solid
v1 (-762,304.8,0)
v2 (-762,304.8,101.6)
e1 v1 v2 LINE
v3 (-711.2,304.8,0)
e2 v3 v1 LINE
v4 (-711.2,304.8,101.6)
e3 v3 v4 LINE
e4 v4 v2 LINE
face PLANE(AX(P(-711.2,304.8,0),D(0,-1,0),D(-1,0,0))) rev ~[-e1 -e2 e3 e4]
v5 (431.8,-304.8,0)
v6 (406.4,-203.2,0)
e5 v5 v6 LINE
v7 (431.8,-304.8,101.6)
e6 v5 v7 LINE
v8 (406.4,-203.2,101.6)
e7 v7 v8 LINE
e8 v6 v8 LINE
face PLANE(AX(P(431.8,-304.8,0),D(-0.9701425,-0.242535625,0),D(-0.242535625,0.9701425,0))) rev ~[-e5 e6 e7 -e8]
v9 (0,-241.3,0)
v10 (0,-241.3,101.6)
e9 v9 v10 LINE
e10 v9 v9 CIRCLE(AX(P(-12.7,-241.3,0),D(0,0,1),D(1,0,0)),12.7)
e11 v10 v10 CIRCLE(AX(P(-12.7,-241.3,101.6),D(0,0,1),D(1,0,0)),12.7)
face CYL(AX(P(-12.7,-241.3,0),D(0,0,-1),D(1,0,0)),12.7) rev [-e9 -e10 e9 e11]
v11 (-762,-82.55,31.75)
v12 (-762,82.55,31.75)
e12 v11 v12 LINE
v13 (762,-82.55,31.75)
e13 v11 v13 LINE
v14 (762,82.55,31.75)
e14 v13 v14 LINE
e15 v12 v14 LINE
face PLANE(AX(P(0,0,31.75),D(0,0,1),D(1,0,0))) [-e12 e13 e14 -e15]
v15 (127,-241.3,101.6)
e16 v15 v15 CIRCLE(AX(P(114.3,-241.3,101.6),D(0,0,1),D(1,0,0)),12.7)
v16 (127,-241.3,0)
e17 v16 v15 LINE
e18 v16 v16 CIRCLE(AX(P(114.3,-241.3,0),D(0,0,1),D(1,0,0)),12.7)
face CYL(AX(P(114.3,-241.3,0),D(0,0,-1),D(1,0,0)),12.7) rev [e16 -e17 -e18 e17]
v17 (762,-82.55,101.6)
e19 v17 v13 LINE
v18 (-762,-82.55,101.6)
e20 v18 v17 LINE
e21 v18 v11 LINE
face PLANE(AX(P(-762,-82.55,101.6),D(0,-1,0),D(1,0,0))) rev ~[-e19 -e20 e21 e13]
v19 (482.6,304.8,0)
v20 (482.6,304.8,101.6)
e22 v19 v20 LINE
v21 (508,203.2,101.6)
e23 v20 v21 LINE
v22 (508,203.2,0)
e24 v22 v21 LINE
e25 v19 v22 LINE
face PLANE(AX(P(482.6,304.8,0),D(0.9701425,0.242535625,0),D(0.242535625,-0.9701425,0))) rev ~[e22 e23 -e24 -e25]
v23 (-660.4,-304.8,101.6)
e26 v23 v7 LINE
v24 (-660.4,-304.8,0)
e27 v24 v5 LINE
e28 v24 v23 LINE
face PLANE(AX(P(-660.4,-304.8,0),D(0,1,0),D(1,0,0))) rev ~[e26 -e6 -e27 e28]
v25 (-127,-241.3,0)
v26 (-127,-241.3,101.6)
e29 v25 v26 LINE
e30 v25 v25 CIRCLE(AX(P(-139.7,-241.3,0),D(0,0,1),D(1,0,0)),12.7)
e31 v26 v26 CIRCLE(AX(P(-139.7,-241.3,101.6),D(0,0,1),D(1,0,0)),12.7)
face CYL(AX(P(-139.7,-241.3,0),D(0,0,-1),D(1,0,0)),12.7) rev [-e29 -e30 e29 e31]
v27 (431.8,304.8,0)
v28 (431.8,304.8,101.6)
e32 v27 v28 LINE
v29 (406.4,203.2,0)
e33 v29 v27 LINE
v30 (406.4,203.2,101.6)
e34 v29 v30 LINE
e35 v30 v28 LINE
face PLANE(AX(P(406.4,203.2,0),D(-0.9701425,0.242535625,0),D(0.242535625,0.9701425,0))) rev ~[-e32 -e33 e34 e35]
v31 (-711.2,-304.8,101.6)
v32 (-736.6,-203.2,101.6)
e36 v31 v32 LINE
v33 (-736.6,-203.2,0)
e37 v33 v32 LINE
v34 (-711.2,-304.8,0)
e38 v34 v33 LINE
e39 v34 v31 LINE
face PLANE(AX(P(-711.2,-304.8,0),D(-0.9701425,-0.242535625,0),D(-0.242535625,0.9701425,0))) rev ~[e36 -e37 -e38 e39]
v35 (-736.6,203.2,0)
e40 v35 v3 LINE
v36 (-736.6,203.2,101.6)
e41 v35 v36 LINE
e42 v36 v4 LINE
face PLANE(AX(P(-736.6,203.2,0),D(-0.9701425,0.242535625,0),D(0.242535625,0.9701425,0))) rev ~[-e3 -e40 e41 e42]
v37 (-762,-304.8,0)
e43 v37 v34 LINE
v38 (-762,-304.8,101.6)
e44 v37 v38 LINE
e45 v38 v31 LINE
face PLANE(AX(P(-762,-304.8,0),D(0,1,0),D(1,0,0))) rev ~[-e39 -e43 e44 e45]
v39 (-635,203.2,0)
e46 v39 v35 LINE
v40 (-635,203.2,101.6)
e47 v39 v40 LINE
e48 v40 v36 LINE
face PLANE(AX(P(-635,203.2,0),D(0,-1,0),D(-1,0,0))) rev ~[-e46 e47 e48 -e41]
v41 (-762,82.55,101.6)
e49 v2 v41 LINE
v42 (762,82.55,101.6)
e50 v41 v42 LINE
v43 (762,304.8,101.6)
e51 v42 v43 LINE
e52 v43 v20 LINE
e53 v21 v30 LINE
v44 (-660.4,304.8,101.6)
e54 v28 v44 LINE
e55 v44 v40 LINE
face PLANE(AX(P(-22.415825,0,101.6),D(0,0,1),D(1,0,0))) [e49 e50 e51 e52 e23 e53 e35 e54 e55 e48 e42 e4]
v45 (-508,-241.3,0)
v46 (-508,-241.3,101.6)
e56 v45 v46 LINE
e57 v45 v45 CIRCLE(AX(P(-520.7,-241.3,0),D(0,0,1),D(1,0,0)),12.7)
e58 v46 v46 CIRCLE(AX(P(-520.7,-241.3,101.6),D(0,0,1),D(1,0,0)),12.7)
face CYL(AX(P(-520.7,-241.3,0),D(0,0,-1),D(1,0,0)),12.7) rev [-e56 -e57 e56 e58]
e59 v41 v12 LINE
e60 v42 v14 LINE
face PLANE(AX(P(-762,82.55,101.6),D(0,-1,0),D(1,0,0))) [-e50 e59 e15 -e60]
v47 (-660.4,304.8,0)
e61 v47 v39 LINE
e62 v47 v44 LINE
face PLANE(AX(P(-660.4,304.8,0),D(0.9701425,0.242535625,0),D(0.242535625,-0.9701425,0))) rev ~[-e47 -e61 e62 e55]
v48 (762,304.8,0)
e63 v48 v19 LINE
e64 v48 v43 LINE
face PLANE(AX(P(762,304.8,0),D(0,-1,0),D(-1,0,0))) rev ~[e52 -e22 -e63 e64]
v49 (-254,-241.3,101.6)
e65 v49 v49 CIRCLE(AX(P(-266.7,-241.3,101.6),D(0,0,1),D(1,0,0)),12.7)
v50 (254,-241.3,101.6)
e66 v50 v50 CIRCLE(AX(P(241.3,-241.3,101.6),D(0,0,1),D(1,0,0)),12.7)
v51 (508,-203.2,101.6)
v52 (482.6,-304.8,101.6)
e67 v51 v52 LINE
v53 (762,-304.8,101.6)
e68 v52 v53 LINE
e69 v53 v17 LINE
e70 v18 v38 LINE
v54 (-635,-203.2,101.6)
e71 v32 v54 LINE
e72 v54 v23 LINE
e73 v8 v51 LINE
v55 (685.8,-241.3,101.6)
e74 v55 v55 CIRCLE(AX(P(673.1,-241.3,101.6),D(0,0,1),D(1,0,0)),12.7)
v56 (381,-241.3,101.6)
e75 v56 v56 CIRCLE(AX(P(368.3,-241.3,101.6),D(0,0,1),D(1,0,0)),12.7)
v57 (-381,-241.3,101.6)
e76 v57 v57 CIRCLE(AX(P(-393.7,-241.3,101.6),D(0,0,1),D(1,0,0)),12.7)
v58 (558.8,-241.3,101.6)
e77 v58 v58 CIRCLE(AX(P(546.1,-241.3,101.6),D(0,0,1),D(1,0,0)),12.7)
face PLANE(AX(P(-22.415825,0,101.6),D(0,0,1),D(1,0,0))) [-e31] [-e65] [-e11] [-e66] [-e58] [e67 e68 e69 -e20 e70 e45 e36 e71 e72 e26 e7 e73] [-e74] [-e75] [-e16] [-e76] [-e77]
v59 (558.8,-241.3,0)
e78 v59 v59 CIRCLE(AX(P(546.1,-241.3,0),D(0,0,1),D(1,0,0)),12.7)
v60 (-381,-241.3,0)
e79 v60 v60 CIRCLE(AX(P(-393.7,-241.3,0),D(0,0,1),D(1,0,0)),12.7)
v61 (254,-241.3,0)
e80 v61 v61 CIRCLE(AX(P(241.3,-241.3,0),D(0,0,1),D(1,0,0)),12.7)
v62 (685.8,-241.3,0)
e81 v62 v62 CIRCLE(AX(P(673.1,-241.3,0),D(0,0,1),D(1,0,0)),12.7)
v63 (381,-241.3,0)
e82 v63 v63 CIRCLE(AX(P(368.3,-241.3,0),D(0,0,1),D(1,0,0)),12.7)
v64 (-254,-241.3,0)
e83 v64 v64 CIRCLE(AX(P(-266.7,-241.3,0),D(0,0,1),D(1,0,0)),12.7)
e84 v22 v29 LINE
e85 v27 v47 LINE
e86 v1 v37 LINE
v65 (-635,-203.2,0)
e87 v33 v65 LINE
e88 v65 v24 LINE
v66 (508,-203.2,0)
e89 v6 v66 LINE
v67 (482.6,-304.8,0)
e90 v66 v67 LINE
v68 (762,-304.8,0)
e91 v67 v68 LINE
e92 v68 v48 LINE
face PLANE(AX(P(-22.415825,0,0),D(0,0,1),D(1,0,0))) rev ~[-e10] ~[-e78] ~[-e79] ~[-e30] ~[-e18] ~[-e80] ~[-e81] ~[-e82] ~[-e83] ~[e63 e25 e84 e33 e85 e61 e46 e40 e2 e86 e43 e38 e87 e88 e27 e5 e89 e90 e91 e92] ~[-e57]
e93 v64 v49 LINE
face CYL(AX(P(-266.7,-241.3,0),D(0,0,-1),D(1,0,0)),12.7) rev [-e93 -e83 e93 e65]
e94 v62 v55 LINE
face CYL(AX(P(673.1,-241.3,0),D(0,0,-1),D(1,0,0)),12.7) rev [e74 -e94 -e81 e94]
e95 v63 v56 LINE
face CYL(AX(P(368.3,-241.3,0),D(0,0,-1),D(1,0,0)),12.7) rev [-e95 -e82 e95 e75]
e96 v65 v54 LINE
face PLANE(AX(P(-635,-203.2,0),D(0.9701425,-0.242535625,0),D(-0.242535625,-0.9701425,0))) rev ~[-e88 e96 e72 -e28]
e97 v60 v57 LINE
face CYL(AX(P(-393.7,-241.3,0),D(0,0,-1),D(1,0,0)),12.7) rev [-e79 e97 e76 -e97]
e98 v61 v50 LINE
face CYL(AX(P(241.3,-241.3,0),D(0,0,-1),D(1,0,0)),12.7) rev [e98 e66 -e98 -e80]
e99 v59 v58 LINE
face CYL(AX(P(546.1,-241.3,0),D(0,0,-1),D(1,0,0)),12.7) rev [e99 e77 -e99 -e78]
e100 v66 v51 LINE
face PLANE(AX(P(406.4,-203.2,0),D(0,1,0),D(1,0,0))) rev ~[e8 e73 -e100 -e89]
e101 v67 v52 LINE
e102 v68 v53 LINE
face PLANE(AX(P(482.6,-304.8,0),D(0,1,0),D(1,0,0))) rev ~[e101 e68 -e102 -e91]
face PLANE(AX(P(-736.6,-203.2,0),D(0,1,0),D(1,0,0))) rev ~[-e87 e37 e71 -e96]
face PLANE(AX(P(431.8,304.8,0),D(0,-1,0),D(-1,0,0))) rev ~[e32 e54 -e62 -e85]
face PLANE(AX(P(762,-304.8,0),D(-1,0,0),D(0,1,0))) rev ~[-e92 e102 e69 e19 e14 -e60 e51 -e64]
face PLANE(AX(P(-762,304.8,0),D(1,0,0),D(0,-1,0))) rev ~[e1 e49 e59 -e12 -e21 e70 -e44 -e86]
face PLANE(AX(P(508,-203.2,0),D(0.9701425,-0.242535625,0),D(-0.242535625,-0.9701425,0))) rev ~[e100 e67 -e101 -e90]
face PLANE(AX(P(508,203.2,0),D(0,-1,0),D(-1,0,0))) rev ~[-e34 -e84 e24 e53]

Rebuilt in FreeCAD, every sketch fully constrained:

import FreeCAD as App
import Part
import Sketcher
Q = App.Units.Quantity


def add_polygon(sketch, points):
    """Adds a closed chain of lines whose ends are joined by coincident constraints."""
    first, n = sketch.GeometryCount, len(points)
    for a, b in zip(points, points[1:] + points[:1]):
        sketch.addGeometry(Part.LineSegment(App.Vector(*a, 0), App.Vector(*b, 0)), False)
    for i in range(n):
        sketch.addConstraint(Sketcher.Constraint("Coincident", first + i, 2, first + (i + 1) % n, 1))

doc = App.newDocument("Part")
params = doc.addObject("Spreadsheet::Sheet", "Params")
for row, (alias, value) in enumerate([
    ("sketch1_diameter", "1 in"),
    ("sketch1_width", "11 in"),
    ("sketch1_width2", "4 in"),
    ("sketch1_width3", "43 in"),
    ("sketch1_width4", "2 in"),
    ("pad1_length", "4 in"),
    ("sketch2_width", "60 in"),
    ("sketch2_height", "6.5 in"),
    ("pocket1_length", "2.75 in"),
], start=1):
    params.set(f"A{row}", alias)
    params.set(f"B{row}", "=" + value)
    params.setAlias(f"B{row}", alias)

body = doc.addObject("PartDesign::Body", "Body")

sketch1 = doc.addObject("Sketcher::SketchObject", "Sketch")
body.addObject(sketch1)
sketch1.AttachmentSupport = (doc.XY_Plane, [""])
sketch1.MapMode = "FlatFace"
add_polygon(sketch1, [(762, -305), (762, 305), (483, 305), (508, 203), (406, 203), (432, 305), (-660, 305), (-635, 203), (-737, 203), (-711, 305), (-762, 305), (-762, -305), (-711, -305), (-737, -203), (-635, -203), (-660, -305), (432, -305), (406, -203), (508, -203), (483, -305)])
sketch1.addGeometry(Part.Circle(App.Vector(-521, -241, 0), App.Vector(0, 0, 1), 13), False)
sketch1.addGeometry(Part.Circle(App.Vector(-394, -241, 0), App.Vector(0, 0, 1), 13), False)
sketch1.addGeometry(Part.Circle(App.Vector(-267, -241, 0), App.Vector(0, 0, 1), 13), False)
sketch1.addGeometry(Part.Circle(App.Vector(-140, -241, 0), App.Vector(0, 0, 1), 13), False)
sketch1.addGeometry(Part.Circle(App.Vector(-13, -241, 0), App.Vector(0, 0, 1), 13), False)
sketch1.addGeometry(Part.Circle(App.Vector(114, -241, 0), App.Vector(0, 0, 1), 13), False)
sketch1.addGeometry(Part.Circle(App.Vector(241, -241, 0), App.Vector(0, 0, 1), 13), False)
sketch1.addGeometry(Part.Circle(App.Vector(368, -241, 0), App.Vector(0, 0, 1), 13), False)
sketch1.addGeometry(Part.Circle(App.Vector(546, -241, 0), App.Vector(0, 0, 1), 13), False)
sketch1.addGeometry(Part.Circle(App.Vector(673, -241, 0), App.Vector(0, 0, 1), 13), False)
sketch1.addConstraint(Sketcher.Constraint("Vertical", 0))
sketch1.addConstraint(Sketcher.Constraint("Horizontal", 1))
sketch1.addConstraint(Sketcher.Constraint("Horizontal", 3))
sketch1.addConstraint(Sketcher.Constraint("Horizontal", 5))
sketch1.addConstraint(Sketcher.Constraint("Horizontal", 7))
sketch1.addConstraint(Sketcher.Constraint("Horizontal", 9))
sketch1.addConstraint(Sketcher.Constraint("Vertical", 10))
sketch1.addConstraint(Sketcher.Constraint("Horizontal", 11))
sketch1.addConstraint(Sketcher.Constraint("Horizontal", 13))
sketch1.addConstraint(Sketcher.Constraint("Horizontal", 15))
sketch1.addConstraint(Sketcher.Constraint("Horizontal", 17))
sketch1.addConstraint(Sketcher.Constraint("Horizontal", 19))
sketch1.addConstraint(Sketcher.Constraint("Equal", 20, 21))
sketch1.addConstraint(Sketcher.Constraint("Equal", 21, 22))
sketch1.addConstraint(Sketcher.Constraint("Equal", 22, 23))
sketch1.addConstraint(Sketcher.Constraint("Equal", 23, 24))
sketch1.addConstraint(Sketcher.Constraint("Equal", 24, 25))
sketch1.addConstraint(Sketcher.Constraint("Equal", 25, 26))
sketch1.addConstraint(Sketcher.Constraint("Equal", 26, 27))
sketch1.addConstraint(Sketcher.Constraint("Equal", 27, 28))
sketch1.addConstraint(Sketcher.Constraint("Equal", 28, 29))
sketch1.addConstraint(Sketcher.Constraint("Symmetric", 0, 2, 10, 2, -1, 1))
sketch1.addConstraint(Sketcher.Constraint("Symmetric", 8, 2, 11, 2, -1))
sketch1.addConstraint(Sketcher.Constraint("Symmetric", 7, 2, 12, 2, -1))
sketch1.addConstraint(Sketcher.Constraint("Symmetric", 5, 2, 14, 2, -1))
sketch1.addConstraint(Sketcher.Constraint("Symmetric", 3, 2, 16, 2, -1))
sketch1.addConstraint(Sketcher.Constraint("Symmetric", 1, 2, 18, 2, -1))
sketch1.addConstraint(Sketcher.Constraint("Parallel", 2, 6))
sketch1.addConstraint(Sketcher.Constraint("Parallel", 4, 8))
sketch1.addConstraint(Sketcher.Constraint("Parallel", 6, 12))
sketch1.addConstraint(Sketcher.Constraint("Parallel", 8, 14))
sketch1.addConstraint(Sketcher.Constraint("Parallel", 12, 16))
sketch1.addConstraint(Sketcher.Constraint("Parallel", 14, 18))
sketch1.addConstraint(Sketcher.Constraint("Horizontal", 20, 3, 21, 3))
sketch1.addConstraint(Sketcher.Constraint("Horizontal", 21, 3, 22, 3))
sketch1.addConstraint(Sketcher.Constraint("Horizontal", 22, 3, 23, 3))
sketch1.addConstraint(Sketcher.Constraint("Horizontal", 23, 3, 24, 3))
sketch1.addConstraint(Sketcher.Constraint("Horizontal", 24, 3, 25, 3))
sketch1.addConstraint(Sketcher.Constraint("Horizontal", 25, 3, 26, 3))
sketch1.addConstraint(Sketcher.Constraint("Horizontal", 26, 3, 27, 3))
sketch1.addConstraint(Sketcher.Constraint("Horizontal", 27, 3, 28, 3))
sketch1.addConstraint(Sketcher.Constraint("Horizontal", 28, 3, 29, 3))
sketch1.addConstraint(Sketcher.Constraint("Horizontal", 1, 2, 4, 2))
sketch1.addConstraint(Sketcher.Constraint("Horizontal", 3, 2, 6, 2))
sketch1.addConstraint(Sketcher.Constraint("Equal", 3, 7))
sketch1.addConstraint(Sketcher.Constraint("Diameter", 20, Q("1 in")))
sketch1.addConstraint(Sketcher.Constraint("DistanceX", 1, 2, 1, 1, Q("11 in")))
sketch1.addConstraint(Sketcher.Constraint("DistanceX", 3, 2, 3, 1, Q("4 in")))
sketch1.addConstraint(Sketcher.Constraint("DistanceX", 5, 2, 5, 1, Q("43 in")))
sketch1.addConstraint(Sketcher.Constraint("DistanceX", 9, 2, 9, 1, Q("2 in")))
sketch1.addConstraint(Sketcher.Constraint("DistanceY", 0, 1, 0, 2, Q("24 in")))
sketch1.addConstraint(Sketcher.Constraint("DistanceX", -1, 1, 0, 2, Q("30 in")))
sketch1.addConstraint(Sketcher.Constraint("DistanceY", -1, 1, 2, 2, Q("8 in")))
sketch1.addConstraint(Sketcher.Constraint("DistanceX", 20, 3, 21, 3, Q("5 in")))
sketch1.addConstraint(Sketcher.Constraint("DistanceX", 21, 3, 22, 3, Q("5 in")))
sketch1.addConstraint(Sketcher.Constraint("DistanceX", 22, 3, 23, 3, Q("5 in")))
sketch1.addConstraint(Sketcher.Constraint("DistanceX", 23, 3, 24, 3, Q("5 in")))
sketch1.addConstraint(Sketcher.Constraint("DistanceX", 24, 3, 25, 3, Q("5 in")))
sketch1.addConstraint(Sketcher.Constraint("DistanceX", 25, 3, 26, 3, Q("5 in")))
sketch1.addConstraint(Sketcher.Constraint("DistanceX", 26, 3, 27, 3, Q("5 in")))
sketch1.addConstraint(Sketcher.Constraint("DistanceX", 27, 3, 28, 3, Q("7 in")))
sketch1.addConstraint(Sketcher.Constraint("DistanceX", 28, 3, 29, 3, Q("5 in")))
sketch1.addConstraint(Sketcher.Constraint("DistanceX", 20, 3, -1, 1, Q("20.5 in")))
sketch1.addConstraint(Sketcher.Constraint("DistanceY", 20, 3, -1, 1, Q("9.5 in")))
sketch1.setExpression("Constraints[65]", "Params.sketch1_diameter")
sketch1.setExpression("Constraints[66]", "Params.sketch1_width")
sketch1.setExpression("Constraints[67]", "Params.sketch1_width2")
sketch1.setExpression("Constraints[68]", "Params.sketch1_width3")
sketch1.setExpression("Constraints[69]", "Params.sketch1_width4")
pad1 = doc.addObject("PartDesign::Pad", "Pad")
body.addObject(pad1)
pad1.Profile = sketch1
pad1.setExpression("Length", "Params.pad1_length")

sketch2 = doc.addObject("Sketcher::SketchObject", "Sketch001")
body.addObject(sketch2)
sketch2.AttachmentSupport = (doc.XY_Plane, [""])
sketch2.MapMode = "FlatFace"
sketch2.AttachmentOffset = App.Placement(App.Vector(0, 0, 4 * 25.4), App.Rotation())
add_polygon(sketch2, [(-762, 83), (-762, -83), (762, -83), (762, 83)])
sketch2.addConstraint(Sketcher.Constraint("Vertical", 0))
sketch2.addConstraint(Sketcher.Constraint("Horizontal", 1))
sketch2.addConstraint(Sketcher.Constraint("Vertical", 2))
sketch2.addConstraint(Sketcher.Constraint("Horizontal", 3))
sketch2.addConstraint(Sketcher.Constraint("Symmetric", 0, 2, 2, 2, -1, 1))
sketch2.addConstraint(Sketcher.Constraint("DistanceX", 1, 1, 1, 2, Q("60 in")))
sketch2.addConstraint(Sketcher.Constraint("DistanceY", 0, 2, 0, 1, Q("6.5 in")))
sketch2.setExpression("Constraints[9]", "Params.sketch2_width")
sketch2.setExpression("Constraints[10]", "Params.sketch2_height")
pocket1 = doc.addObject("PartDesign::Pocket", "Pocket")
body.addObject(pocket1)
pocket1.Profile = sketch2
pocket1.setExpression("Length", "Params.pocket1_length")

doc.recompute()
